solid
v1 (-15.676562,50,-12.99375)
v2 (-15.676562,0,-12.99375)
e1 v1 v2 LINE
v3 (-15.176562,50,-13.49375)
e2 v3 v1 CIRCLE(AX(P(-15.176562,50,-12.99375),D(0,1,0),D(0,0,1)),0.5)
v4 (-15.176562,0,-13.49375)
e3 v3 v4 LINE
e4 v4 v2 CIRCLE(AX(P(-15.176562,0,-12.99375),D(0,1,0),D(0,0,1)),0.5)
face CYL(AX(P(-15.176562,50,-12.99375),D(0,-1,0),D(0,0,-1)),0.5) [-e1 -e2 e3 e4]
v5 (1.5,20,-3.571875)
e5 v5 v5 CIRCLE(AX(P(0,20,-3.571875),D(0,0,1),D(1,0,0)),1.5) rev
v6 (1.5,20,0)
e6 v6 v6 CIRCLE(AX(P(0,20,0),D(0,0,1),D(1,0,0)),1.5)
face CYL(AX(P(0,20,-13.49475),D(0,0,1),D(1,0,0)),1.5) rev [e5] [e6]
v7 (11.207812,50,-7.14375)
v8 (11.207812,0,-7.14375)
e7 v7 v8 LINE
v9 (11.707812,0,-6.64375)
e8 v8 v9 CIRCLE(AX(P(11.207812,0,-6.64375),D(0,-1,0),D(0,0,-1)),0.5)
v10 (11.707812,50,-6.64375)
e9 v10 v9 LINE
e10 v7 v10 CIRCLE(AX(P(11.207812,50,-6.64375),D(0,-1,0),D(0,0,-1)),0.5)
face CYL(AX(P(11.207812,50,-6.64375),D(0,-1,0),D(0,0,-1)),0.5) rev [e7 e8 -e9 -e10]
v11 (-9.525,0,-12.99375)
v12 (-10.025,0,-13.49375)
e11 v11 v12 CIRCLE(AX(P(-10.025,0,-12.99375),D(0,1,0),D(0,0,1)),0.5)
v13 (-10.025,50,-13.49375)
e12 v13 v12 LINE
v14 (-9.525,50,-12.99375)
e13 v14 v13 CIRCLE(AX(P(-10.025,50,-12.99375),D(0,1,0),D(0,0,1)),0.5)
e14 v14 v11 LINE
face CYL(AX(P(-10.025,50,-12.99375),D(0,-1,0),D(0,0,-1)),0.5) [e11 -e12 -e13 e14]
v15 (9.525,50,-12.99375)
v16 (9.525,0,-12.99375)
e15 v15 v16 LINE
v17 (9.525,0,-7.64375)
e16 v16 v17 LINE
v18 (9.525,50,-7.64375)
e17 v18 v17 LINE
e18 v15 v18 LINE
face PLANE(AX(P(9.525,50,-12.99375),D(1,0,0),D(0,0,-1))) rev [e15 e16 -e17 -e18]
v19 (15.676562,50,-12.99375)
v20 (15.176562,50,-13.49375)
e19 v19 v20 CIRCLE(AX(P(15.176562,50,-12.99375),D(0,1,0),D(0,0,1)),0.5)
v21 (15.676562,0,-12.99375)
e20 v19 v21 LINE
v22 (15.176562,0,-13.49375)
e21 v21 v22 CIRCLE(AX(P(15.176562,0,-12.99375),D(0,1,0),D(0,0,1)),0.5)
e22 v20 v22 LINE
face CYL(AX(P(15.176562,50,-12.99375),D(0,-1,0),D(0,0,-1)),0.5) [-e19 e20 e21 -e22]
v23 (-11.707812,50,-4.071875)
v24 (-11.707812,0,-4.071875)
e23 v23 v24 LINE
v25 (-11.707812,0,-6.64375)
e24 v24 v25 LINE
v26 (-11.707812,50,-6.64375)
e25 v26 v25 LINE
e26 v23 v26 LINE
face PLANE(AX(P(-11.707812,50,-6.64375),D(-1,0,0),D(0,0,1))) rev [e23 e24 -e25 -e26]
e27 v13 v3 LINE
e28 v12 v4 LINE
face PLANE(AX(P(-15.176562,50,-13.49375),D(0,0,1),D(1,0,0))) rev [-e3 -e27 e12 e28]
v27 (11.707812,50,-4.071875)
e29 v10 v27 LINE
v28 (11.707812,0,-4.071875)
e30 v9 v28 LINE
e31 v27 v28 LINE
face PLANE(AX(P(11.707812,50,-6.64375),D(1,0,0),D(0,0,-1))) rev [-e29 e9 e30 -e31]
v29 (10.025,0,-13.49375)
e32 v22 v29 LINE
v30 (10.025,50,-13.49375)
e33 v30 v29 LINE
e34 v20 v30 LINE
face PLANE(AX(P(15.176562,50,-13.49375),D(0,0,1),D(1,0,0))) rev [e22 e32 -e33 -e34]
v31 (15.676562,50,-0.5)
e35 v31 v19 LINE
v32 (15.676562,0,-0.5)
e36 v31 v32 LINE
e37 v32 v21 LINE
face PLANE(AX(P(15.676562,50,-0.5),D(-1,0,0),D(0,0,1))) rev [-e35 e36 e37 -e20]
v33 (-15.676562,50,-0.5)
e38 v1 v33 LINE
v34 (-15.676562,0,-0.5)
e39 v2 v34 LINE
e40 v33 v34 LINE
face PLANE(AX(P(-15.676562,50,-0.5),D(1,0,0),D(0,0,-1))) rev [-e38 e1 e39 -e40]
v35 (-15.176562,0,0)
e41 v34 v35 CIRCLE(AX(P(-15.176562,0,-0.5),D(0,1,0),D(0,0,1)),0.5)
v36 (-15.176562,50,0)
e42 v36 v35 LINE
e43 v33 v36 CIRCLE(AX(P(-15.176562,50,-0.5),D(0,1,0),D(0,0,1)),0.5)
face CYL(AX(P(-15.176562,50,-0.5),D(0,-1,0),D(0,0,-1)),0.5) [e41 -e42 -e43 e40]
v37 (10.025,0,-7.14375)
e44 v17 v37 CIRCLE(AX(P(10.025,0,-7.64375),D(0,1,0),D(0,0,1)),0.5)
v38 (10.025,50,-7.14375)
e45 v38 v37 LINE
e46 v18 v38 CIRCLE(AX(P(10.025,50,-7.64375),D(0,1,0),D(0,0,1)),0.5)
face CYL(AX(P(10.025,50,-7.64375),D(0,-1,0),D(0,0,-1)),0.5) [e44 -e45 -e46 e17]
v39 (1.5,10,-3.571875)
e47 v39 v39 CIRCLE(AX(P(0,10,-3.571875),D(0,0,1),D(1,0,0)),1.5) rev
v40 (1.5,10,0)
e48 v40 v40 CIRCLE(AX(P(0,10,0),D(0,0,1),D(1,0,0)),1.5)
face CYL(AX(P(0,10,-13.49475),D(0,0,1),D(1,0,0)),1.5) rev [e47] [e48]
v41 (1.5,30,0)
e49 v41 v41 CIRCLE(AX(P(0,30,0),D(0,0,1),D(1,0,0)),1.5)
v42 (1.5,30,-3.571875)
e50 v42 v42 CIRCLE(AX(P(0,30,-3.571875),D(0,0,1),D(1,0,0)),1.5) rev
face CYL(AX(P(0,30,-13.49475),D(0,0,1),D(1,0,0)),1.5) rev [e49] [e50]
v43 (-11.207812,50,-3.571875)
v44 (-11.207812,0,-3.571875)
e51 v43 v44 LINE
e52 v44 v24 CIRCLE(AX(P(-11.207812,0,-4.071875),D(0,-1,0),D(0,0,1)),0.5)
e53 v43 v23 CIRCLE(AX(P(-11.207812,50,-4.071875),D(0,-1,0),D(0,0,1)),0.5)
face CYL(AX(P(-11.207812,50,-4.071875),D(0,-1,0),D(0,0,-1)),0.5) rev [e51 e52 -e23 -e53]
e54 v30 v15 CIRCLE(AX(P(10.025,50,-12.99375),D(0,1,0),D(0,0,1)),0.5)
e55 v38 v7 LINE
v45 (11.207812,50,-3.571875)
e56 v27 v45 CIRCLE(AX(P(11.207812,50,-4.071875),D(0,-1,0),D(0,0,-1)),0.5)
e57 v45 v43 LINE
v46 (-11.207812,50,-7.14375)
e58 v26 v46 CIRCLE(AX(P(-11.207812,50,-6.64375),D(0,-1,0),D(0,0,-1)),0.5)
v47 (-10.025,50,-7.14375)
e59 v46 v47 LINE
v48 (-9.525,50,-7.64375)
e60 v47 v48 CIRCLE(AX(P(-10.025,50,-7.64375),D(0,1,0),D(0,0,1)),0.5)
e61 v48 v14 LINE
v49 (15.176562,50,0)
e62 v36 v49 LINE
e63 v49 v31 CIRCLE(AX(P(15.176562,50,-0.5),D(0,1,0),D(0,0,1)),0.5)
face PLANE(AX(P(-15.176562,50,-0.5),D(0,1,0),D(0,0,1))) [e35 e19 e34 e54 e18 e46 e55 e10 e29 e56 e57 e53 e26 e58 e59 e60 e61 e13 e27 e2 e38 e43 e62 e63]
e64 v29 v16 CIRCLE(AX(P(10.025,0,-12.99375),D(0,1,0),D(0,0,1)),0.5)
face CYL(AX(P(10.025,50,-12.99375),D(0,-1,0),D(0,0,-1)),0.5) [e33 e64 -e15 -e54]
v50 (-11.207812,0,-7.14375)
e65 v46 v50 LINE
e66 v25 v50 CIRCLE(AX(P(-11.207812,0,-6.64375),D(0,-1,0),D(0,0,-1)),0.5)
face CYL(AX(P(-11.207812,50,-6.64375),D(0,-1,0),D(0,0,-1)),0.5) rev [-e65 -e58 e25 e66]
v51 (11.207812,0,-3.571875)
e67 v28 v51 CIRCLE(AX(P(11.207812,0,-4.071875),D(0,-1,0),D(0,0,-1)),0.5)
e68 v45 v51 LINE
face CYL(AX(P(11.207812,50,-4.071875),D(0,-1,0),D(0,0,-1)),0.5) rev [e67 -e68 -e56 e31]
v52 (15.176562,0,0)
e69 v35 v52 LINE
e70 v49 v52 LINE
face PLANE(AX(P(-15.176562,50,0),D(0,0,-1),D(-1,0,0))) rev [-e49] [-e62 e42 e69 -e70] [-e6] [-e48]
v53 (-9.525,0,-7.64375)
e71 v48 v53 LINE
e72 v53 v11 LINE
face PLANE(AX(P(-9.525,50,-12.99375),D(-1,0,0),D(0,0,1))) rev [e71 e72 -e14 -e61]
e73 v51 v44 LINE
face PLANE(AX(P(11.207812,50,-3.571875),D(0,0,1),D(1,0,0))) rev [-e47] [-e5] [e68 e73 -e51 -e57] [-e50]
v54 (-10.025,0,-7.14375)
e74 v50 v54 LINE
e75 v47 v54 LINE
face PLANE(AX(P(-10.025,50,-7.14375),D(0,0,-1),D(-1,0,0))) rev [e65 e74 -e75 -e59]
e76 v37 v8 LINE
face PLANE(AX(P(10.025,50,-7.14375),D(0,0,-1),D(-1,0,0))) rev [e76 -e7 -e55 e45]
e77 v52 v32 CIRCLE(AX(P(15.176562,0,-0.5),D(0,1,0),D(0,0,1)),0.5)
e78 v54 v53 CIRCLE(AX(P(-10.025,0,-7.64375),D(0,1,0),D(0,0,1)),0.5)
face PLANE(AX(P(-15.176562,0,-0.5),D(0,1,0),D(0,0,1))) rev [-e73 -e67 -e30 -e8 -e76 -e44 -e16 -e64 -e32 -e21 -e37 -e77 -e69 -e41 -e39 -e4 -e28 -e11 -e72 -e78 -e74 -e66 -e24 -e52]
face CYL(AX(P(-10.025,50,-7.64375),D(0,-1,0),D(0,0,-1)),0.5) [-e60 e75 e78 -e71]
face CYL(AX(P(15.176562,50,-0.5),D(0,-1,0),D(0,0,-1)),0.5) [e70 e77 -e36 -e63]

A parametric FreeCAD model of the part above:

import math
import FreeCAD as App
import Part
import Sketcher

V = App.Vector

doc = App.newDocument("Part")
body = doc.addObject("PartDesign::Body", "Body")

# Sketch on XZ plane
sketch1 = body.newObject("Sketcher::SketchObject", "Sketch")
sketch1.AttachmentSupport = (doc.getObject("XZ_Plane"), [""])
sketch1.MapMode = "FlatFace"
sketch1.addGeometry([
    Part.LineSegment(V(-15.176562, 0, 0), V(15.176562, 0, 0)),  # 0
    Part.ArcOfCircle(Part.Circle(V(15.176563, -0.5, 0), V(0, 0, 1), 0.5), math.radians(0), math.radians(90)),  # 1
    Part.LineSegment(V(15.676562, -0.5, 0), V(15.676562, -12.99375, 0)),  # 2
    Part.ArcOfCircle(Part.Circle(V(15.176563, -12.99375, 0), V(0, 0, 1), 0.5), math.radians(-90), math.radians(0)),  # 3
    Part.LineSegment(V(15.176562, -13.49375, 0), V(10.025, -13.49375, 0)),  # 4
    Part.ArcOfCircle(Part.Circle(V(10.025, -12.99375, 0), V(0, 0, 1), 0.5), math.radians(180), math.radians(270)),  # 5
    Part.LineSegment(V(9.525, -12.99375, 0), V(9.525, -7.64375, 0)),  # 6
    Part.ArcOfCircle(Part.Circle(V(10.025, -7.64375, 0), V(0, 0, 1), 0.5), math.radians(90), math.radians(180)),  # 7
    Part.LineSegment(V(10.025, -7.14375, 0), V(11.207812, -7.14375, 0)),  # 8
    Part.ArcOfCircle(Part.Circle(V(11.207813, -6.64375, 0), V(0, 0, 1), 0.5), math.radians(-90), math.radians(0)),  # 9
    Part.LineSegment(V(11.707812, -6.64375, 0), V(11.707812, -4.071875, 0)),  # 10
    Part.ArcOfCircle(Part.Circle(V(11.207813, -4.071875, 0), V(0, 0, 1), 0.5), math.radians(0), math.radians(90)),  # 11
    Part.LineSegment(V(11.207812, -3.571875, 0), V(-11.207812, -3.571875, 0)),  # 12
    Part.ArcOfCircle(Part.Circle(V(-11.207813, -4.071875, 0), V(0, 0, 1), 0.5), math.radians(90), math.radians(180)),  # 13
    Part.LineSegment(V(-11.707812, -4.071875, 0), V(-11.707812, -6.64375, 0)),  # 14
    Part.ArcOfCircle(Part.Circle(V(-11.207813, -6.64375, 0), V(0, 0, 1), 0.5), math.radians(180), math.radians(270)),  # 15
    Part.LineSegment(V(-11.207812, -7.14375, 0), V(-10.025, -7.14375, 0)),  # 16
    Part.ArcOfCircle(Part.Circle(V(-10.025, -7.64375, 0), V(0, 0, 1), 0.5), math.radians(0), math.radians(90)),  # 17
    Part.LineSegment(V(-9.525, -7.64375, 0), V(-9.525, -12.99375, 0)),  # 18
    Part.ArcOfCircle(Part.Circle(V(-10.025, -12.99375, 0), V(0, 0, 1), 0.5), math.radians(-90), math.radians(0)),  # 19
    Part.LineSegment(V(-10.025, -13.49375, 0), V(-15.176562, -13.49375, 0)),  # 20
    Part.ArcOfCircle(Part.Circle(V(-15.176563, -12.99375, 0), V(0, 0, 1), 0.5), math.radians(180), math.radians(270)),  # 21
    Part.LineSegment(V(-15.676562, -12.99375, 0), V(-15.676562, -0.5, 0)),  # 22
    Part.ArcOfCircle(Part.Circle(V(-15.176563, -0.5, 0), V(0, 0, 1), 0.5), math.radians(90), math.radians(180)),  # 23
], False)
sketch1.addConstraint([
    Sketcher.Constraint("Tangent", 0, 2, 1, 2),
    Sketcher.Constraint("Tangent", 1, 1, 2, 1),
    Sketcher.Constraint("Tangent", 2, 2, 3, 2),
    Sketcher.Constraint("Tangent", 3, 1, 4, 1),
    Sketcher.Constraint("Tangent", 4, 2, 5, 2),
    Sketcher.Constraint("Tangent", 5, 1, 6, 1),
    Sketcher.Constraint("Tangent", 6, 2, 7, 2),
    Sketcher.Constraint("Tangent", 7, 1, 8, 1),
    Sketcher.Constraint("Tangent", 8, 2, 9, 1),
    Sketcher.Constraint("Tangent", 9, 2, 10, 1),
    Sketcher.Constraint("Tangent", 10, 2, 11, 1),
    Sketcher.Constraint("Tangent", 11, 2, 12, 1),
    Sketcher.Constraint("Tangent", 12, 2, 13, 1),
    Sketcher.Constraint("Tangent", 13, 2, 14, 1),
    Sketcher.Constraint("Tangent", 14, 2, 15, 1),
    Sketcher.Constraint("Tangent", 15, 2, 16, 1),
    Sketcher.Constraint("Tangent", 16, 2, 17, 2),
    Sketcher.Constraint("Tangent", 17, 1, 18, 1),
    Sketcher.Constraint("Tangent", 18, 2, 19, 2),
    Sketcher.Constraint("Tangent", 19, 1, 20, 1),
    Sketcher.Constraint("Tangent", 20, 2, 21, 2),
    Sketcher.Constraint("Tangent", 21, 1, 22, 1),
    Sketcher.Constraint("Tangent", 22, 2, 23, 2),
    Sketcher.Constraint("Tangent", 23, 1, 0, 1),
    Sketcher.Constraint("Horizontal", 0),
    Sketcher.Constraint("Vertical", 2),
    Sketcher.Constraint("Horizontal", 4),
    Sketcher.Constraint("Vertical", 6),
    Sketcher.Constraint("Horizontal", 8),
    Sketcher.Constraint("Vertical", 10),
    Sketcher.Constraint("Horizontal", 12),
    Sketcher.Constraint("Vertical", 14),
    Sketcher.Constraint("Horizontal", 16),
    Sketcher.Constraint("Vertical", 18),
    Sketcher.Constraint("Horizontal", 20),
    Sketcher.Constraint("Vertical", 22),
    Sketcher.Constraint("Equal", 1, 3),
    Sketcher.Constraint("Equal", 3, 5),
    Sketcher.Constraint("Equal", 5, 7),
    Sketcher.Constraint("Equal", 7, 9),
    Sketcher.Constraint("Equal", 9, 11),
    Sketcher.Constraint("Equal", 11, 13),
    Sketcher.Constraint("Equal", 13, 15),
    Sketcher.Constraint("Equal", 15, 17),
    Sketcher.Constraint("Equal", 17, 19),
    Sketcher.Constraint("Equal", 19, 21),
    Sketcher.Constraint("Equal", 21, 23),
    Sketcher.Constraint("Symmetric", 0, 2, 23, 1, -1, 1),
    Sketcher.Constraint("Symmetric", 9, 3, 15, 3, -2),
    Sketcher.Constraint("Symmetric", 5, 3, 19, 3, -2),
    Sketcher.Constraint("Radius", 1, 0.5),
    Sketcher.Constraint("DistanceY", 6, 1, 6, 2, 5.35),
    Sketcher.Constraint("DistanceX", 17, 3, 7, 3, 20.05),
    Sketcher.Constraint("DistanceY", 2, 2, 2, 1, 12.49375),
    Sketcher.Constraint("DistanceX", 0, 1, 0, 2, 30.353125),
    Sketcher.Constraint("DistanceX", 8, 1, 8, 2, 1.182812),
    Sketcher.Constraint("DistanceY", 10, 1, 10, 2, 2.571875),
])
pad1 = body.newObject("PartDesign::Pad", "Pad")
pad1.Profile = sketch1
pad1.Length = 50
pad1.Reversed = True

# Sketch on XY plane
sketch2 = body.newObject("Sketcher::SketchObject", "Sketch001")
sketch2.AttachmentSupport = (doc.getObject("XY_Plane"), [""])
sketch2.MapMode = "FlatFace"
sketch2.addGeometry(Part.Circle(V(0, 10, 0), V(0, 0, 1), 1.5), False)
sketch2.addConstraint([
    Sketcher.Constraint("PointOnObject", 0, 3, -2),
    Sketcher.Constraint("Diameter", 0, 3.0),
    Sketcher.Constraint("DistanceY", -1, 1, 0, 3, 10.0),
])
pocket1 = body.newObject("PartDesign::Pocket", "Pocket")
pocket1.Profile = sketch2
pocket1.Type = "UpToFirst"

# Sketch on XY plane
sketch3 = body.newObject("Sketcher::SketchObject", "Sketch002")
sketch3.AttachmentSupport = (doc.getObject("XY_Plane"), [""])
sketch3.MapMode = "FlatFace"
sketch3.addGeometry(Part.Circle(V(0, 20, 0), V(0, 0, 1), 1.5), False)
sketch3.addConstraint([
    Sketcher.Constraint("PointOnObject", 0, 3, -2),
    Sketcher.Constraint("Diameter", 0, 3.0),
    Sketcher.Constraint("DistanceY", -1, 1, 0, 3, 20.0),
])
pocket2 = body.newObject("PartDesign::Pocket", "Pocket001")
pocket2.Profile = sketch3
pocket2.Type = "UpToFirst"

# Sketch on XY plane
sketch4 = body.newObject("Sketcher::SketchObject", "Sketch003")
sketch4.AttachmentSupport = (doc.getObject("XY_Plane"), [""])
sketch4.MapMode = "FlatFace"
sketch4.addGeometry(Part.Circle(V(0, 30, 0), V(0, 0, 1), 1.5), False)
sketch4.addConstraint([
    Sketcher.Constraint("PointOnObject", 0, 3, -2),
    Sketcher.Constraint("Diameter", 0, 3.0),
    Sketcher.Constraint("DistanceY", -1, 1, 0, 3, 30.0),
])
pocket3 = body.newObject("PartDesign::Pocket", "Pocket002")
pocket3.Profile = sketch4
pocket3.Type = "UpToFirst"

doc.recompute()
